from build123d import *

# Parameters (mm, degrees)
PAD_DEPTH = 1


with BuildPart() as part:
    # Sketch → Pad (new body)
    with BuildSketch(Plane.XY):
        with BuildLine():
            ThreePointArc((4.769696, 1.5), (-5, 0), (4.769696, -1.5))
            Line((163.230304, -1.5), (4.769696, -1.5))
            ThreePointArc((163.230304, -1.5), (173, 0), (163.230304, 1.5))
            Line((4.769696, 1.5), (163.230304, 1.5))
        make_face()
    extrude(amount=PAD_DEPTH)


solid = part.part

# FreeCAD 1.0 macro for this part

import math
import FreeCAD as App
import Part
import Sketcher

doc = App.newDocument("Part")
body = doc.addObject("PartDesign::Body", "Body")

# Sketch on XY plane
sketch1 = body.newObject("Sketcher::SketchObject", "Sketch")
sketch1.AttachmentSupport = (doc.getObject("XY_Plane"), [""])
sketch1.MapMode = "FlatFace"
sketch1.addGeometry(Part.ArcOfCircle(Part.Circle(App.Vector(0, 0, 0), App.Vector(0, 0, 1), 5), math.radians(17), math.radians(343)), False)
sketch1.addGeometry(Part.LineSegment(App.Vector(4.8, -1.5, 0), App.Vector(163.2, -1.5, 0)), False)
sketch1.addGeometry(Part.ArcOfCircle(Part.Circle(App.Vector(168, 0, 0), App.Vector(0, 0, 1), 5), math.radians(-163), math.radians(163)), False)
sketch1.addGeometry(Part.LineSegment(App.Vector(163.2, 1.5, 0), App.Vector(4.8, 1.5, 0)), False)
sketch1.addConstraint(Sketcher.Constraint("Coincident", 0, 2, 1, 1))
sketch1.addConstraint(Sketcher.Constraint("Coincident", 1, 2, 2, 1))
sketch1.addConstraint(Sketcher.Constraint("Coincident", 2, 2, 3, 1))
sketch1.addConstraint(Sketcher.Constraint("Coincident", 3, 2, 0, 1))
sketch1.addConstraint(Sketcher.Constraint("Horizontal", 1))
sketch1.addConstraint(Sketcher.Constraint("Horizontal", 3))
sketch1.addConstraint(Sketcher.Constraint("Coincident", 0, 3, -1, 1))
sketch1.addConstraint(Sketcher.Constraint("Equal", 0, 2))
sketch1.addConstraint(Sketcher.Constraint("Symmetric", 1, 2, 2, 2, -1))
sketch1.addConstraint(Sketcher.Constraint("Radius", 0, 5.0))
sketch1.addConstraint(Sketcher.Constraint("DistanceX", -1, 1, 2, 3, 168.0))
sketch1.addConstraint(Sketcher.Constraint("DistanceY", 1, 2, 2, 2, 3.0))
pad1 = body.newObject("PartDesign::Pad", "Pad")
pad1.Profile = sketch1
pad1.Length = 1

doc.recompute()
